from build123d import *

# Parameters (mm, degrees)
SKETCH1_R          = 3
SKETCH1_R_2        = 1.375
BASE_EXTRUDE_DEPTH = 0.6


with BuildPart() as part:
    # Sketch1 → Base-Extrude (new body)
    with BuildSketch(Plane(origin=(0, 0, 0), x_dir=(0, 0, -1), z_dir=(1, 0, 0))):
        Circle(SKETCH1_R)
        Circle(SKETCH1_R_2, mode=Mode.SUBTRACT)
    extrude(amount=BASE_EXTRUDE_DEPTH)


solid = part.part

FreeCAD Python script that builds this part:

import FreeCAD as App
import Part
import Sketcher

doc = App.newDocument("Part")
body = doc.addObject("PartDesign::Body", "Body")

sketch1 = body.newObject("Sketcher::SketchObject", "Sketch")
sketch1.AttachmentSupport = (doc.getObject("YZ_Plane"), [""])
sketch1.MapMode = "FlatFace"
sketch1.addGeometry([
    Part.Circle(App.Vector(0, 0, 0), App.Vector(0, 0, 1), 3),
    Part.Circle(App.Vector(0, 0, 0), App.Vector(0, 0, 1), 1.4),
], False)
sketch1.addConstraint([
    Sketcher.Constraint("Coincident", 0, 3, -1, 1),
    Sketcher.Constraint("Coincident", 1, 3, -1, 1),
    Sketcher.Constraint("Diameter", 0, 6.0),
    Sketcher.Constraint("Diameter", 1, 2.75),
])
pad1 = body.newObject("PartDesign::Pad", "Pad")
pad1.Profile = sketch1
pad1.Length = 0.6

doc.recompute()
